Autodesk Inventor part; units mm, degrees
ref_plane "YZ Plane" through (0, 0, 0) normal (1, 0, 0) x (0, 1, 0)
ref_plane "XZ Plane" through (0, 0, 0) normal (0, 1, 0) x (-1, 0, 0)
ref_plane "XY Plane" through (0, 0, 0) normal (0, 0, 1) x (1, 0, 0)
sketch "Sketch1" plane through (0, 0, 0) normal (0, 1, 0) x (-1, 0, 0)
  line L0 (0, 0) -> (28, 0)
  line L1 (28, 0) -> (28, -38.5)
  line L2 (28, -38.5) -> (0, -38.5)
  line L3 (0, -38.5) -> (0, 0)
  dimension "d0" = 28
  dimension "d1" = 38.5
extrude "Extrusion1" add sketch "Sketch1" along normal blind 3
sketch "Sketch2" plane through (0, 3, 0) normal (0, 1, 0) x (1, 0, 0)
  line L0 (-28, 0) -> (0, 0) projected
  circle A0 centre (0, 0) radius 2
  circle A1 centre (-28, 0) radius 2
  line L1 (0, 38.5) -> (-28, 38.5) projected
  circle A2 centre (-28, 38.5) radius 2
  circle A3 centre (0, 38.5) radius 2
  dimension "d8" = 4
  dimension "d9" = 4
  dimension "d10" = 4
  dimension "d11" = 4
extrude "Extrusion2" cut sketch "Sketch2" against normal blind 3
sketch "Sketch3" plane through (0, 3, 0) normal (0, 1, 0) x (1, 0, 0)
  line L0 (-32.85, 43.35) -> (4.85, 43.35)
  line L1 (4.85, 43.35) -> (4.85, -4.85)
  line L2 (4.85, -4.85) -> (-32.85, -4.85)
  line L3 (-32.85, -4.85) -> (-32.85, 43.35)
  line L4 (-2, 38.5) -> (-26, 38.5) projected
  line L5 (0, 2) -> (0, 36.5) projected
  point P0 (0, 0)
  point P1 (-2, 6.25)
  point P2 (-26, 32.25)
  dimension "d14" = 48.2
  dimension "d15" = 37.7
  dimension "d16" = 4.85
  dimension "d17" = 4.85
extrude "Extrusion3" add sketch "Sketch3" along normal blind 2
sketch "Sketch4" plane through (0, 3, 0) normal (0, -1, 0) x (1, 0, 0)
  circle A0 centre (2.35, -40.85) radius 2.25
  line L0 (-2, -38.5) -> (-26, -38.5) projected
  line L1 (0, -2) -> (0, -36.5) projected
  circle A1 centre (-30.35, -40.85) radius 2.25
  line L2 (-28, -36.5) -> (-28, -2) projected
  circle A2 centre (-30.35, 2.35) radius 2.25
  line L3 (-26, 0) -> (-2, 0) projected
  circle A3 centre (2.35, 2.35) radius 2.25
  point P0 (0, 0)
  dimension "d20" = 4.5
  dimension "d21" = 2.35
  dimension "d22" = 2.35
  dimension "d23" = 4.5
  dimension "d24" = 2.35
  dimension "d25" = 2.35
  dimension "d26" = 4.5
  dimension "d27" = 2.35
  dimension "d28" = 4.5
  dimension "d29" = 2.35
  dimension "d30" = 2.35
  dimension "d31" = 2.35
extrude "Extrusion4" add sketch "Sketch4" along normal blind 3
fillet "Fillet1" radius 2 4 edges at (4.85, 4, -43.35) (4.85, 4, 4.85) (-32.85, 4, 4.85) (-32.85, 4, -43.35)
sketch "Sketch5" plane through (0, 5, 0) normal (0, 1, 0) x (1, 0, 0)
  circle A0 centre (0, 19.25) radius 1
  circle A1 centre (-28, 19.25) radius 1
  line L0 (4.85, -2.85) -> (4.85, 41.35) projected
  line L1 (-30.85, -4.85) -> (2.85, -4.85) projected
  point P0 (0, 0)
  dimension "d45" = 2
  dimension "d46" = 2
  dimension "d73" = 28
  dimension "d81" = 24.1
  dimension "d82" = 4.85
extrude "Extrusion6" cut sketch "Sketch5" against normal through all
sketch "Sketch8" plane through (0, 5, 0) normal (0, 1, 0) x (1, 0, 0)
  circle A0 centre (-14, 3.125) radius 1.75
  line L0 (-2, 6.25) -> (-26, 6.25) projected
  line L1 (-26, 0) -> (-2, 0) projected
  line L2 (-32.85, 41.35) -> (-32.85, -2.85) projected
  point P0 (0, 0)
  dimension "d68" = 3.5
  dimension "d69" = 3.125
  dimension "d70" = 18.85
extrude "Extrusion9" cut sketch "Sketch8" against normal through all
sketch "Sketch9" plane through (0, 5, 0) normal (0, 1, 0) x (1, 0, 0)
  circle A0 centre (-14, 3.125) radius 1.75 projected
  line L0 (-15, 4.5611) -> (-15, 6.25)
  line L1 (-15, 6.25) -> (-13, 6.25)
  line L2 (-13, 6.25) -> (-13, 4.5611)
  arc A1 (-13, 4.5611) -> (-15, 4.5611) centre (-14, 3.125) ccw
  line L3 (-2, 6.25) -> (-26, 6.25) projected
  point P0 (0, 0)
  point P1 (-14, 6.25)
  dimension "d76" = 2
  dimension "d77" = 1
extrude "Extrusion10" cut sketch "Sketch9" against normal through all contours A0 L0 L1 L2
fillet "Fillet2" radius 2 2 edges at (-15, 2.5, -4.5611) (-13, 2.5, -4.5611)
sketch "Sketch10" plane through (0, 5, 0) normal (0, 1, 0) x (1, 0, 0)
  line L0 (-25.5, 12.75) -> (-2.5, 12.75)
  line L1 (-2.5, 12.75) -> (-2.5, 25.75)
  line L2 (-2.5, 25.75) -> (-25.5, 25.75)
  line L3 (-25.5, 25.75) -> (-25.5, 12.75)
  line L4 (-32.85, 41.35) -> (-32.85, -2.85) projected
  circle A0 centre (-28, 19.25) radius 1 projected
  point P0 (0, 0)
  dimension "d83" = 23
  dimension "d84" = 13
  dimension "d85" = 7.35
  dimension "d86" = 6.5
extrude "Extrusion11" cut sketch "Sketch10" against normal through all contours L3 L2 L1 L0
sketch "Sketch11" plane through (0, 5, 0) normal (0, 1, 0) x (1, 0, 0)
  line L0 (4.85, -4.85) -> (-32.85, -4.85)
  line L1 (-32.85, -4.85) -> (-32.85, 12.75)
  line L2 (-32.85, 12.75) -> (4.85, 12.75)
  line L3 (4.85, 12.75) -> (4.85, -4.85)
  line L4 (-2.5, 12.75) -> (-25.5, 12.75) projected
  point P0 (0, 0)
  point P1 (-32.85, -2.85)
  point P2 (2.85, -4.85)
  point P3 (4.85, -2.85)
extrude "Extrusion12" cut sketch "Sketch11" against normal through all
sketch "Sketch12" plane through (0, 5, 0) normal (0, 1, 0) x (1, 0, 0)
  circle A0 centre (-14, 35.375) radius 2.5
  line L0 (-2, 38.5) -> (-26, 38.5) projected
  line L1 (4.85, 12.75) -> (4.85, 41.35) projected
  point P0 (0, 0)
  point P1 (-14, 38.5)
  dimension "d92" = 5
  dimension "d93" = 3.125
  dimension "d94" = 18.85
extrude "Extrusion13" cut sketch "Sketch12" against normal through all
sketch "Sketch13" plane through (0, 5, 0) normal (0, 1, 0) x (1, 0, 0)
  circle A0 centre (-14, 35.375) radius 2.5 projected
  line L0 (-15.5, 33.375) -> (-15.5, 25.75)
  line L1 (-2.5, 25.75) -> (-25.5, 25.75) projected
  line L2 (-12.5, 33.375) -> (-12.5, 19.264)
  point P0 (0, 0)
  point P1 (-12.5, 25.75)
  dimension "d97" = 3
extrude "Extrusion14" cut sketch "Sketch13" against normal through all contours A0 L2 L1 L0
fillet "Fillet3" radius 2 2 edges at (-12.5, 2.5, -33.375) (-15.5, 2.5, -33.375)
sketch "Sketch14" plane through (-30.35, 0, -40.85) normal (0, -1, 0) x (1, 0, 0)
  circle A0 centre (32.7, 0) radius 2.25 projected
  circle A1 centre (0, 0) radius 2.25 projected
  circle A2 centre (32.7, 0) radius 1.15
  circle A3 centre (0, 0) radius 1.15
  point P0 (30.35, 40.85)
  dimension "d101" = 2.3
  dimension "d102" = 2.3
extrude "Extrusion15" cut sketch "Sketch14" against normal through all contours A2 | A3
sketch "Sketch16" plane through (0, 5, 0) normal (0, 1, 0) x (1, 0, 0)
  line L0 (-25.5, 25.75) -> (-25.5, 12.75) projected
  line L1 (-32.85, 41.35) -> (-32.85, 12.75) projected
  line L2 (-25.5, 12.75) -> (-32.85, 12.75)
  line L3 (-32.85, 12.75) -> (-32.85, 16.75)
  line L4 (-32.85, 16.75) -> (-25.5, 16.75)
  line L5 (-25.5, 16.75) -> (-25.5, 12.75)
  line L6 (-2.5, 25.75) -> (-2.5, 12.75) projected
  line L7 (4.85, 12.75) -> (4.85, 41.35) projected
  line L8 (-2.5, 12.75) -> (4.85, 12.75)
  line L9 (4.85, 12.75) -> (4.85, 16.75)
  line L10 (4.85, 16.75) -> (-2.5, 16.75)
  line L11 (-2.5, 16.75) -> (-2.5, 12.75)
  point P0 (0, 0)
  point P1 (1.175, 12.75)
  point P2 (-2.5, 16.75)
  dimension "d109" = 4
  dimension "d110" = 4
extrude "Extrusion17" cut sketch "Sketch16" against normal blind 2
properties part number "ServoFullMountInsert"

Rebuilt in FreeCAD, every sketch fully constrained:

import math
import FreeCAD as App
import Part
import Sketcher
from FreeCAD import Vector
Q = App.Units.Quantity


def edges_at(feature, points):
    """Names of the edges that pass closest to the given points."""
    edges = feature.Shape.Edges
    near = lambda p: min(range(len(edges)), key=lambda i: edges[i].distToShape(Part.Vertex(*p))[0])
    return sorted({f"Edge{near(p) + 1}" for p in points})

doc = App.newDocument("Part")
body = doc.addObject("PartDesign::Body", "Body")

# Sketch on XZ plane
sketch1 = doc.addObject("Sketcher::SketchObject", "Sketch")
body.addObject(sketch1)
sketch1.AttachmentSupport = (doc.XZ_Plane, [""])
sketch1.MapMode = "FlatFace"
sketch1.addGeometry([
    Part.LineSegment(Vector(-28, 0, 0), Vector(0, 0, 0)),
    Part.LineSegment(Vector(0, 0, 0), Vector(0, -38.5, 0)),
    Part.LineSegment(Vector(0, -38.5, 0), Vector(-28, -38.5, 0)),
    Part.LineSegment(Vector(-28, -38.5, 0), Vector(-28, 0, 0)),
], False)
sketch1.addConstraint([
    Sketcher.Constraint("Coincident", 0, 2, 1, 1),
    Sketcher.Constraint("Coincident", 1, 2, 2, 1),
    Sketcher.Constraint("Coincident", 2, 2, 3, 1),
    Sketcher.Constraint("Coincident", 3, 2, 0, 1),
    Sketcher.Constraint("Horizontal", 0),
    Sketcher.Constraint("Vertical", 1),
    Sketcher.Constraint("Horizontal", 2),
    Sketcher.Constraint("Vertical", 3),
    Sketcher.Constraint("Coincident", 0, 2, -1, 1),
    Sketcher.Constraint("DistanceX", 0, 1, 0, 2, Q("28 mm")),
    Sketcher.Constraint("DistanceY", 1, 2, 1, 1, Q("38.5 mm")),
])
pad1 = doc.addObject("PartDesign::Pad", "Pad")
body.addObject(pad1)
pad1.Profile = sketch1
pad1.Length = 3
pad1.Reversed = True

# Sketch on XZ plane
sketch2 = doc.addObject("Sketcher::SketchObject", "Sketch001")
body.addObject(sketch2)
sketch2.AttachmentSupport = (doc.XZ_Plane, [""])
sketch2.MapMode = "FlatFace"
sketch2.AttachmentOffset = App.Placement(Vector(0, 0, -3), App.Rotation())
sketch2.addGeometry([
    Part.Circle(Vector(0, 0, 0), Vector(0, 0, 1), 2),
    Part.Circle(Vector(-28, 0, 0), Vector(0, 0, 1), 2),
    Part.Circle(Vector(-28, -38.5, 0), Vector(0, 0, 1), 2),
    Part.Circle(Vector(0, -38.5, 0), Vector(0, 0, 1), 2),
], False)
sketch2.addConstraint([
    Sketcher.Constraint("Coincident", 0, 3, -1, 1),
    Sketcher.Constraint("Equal", 0, 1),
    Sketcher.Constraint("Equal", 1, 2),
    Sketcher.Constraint("Equal", 2, 3),
    Sketcher.Constraint("PointOnObject", 1, 3, -1),
    Sketcher.Constraint("PointOnObject", 3, 3, -2),
    Sketcher.Constraint("Horizontal", 2, 3, 3, 3),
    Sketcher.Constraint("Vertical", 1, 3, 2, 3),
    Sketcher.Constraint("Diameter", 0, Q("4 mm")),
    Sketcher.Constraint("DistanceX", 1, 3, -1, 1, Q("28 mm")),
    Sketcher.Constraint("DistanceY", 2, 3, -1, 1, Q("38.5 mm")),
])
pocket1 = doc.addObject("PartDesign::Pocket", "Pocket")
body.addObject(pocket1)
pocket1.Profile = sketch2
pocket1.Length = 3
pocket1.Reversed = True

# Sketch on XZ plane
sketch3 = doc.addObject("Sketcher::SketchObject", "Sketch002")
body.addObject(sketch3)
sketch3.AttachmentSupport = (doc.XZ_Plane, [""])
sketch3.MapMode = "FlatFace"
sketch3.AttachmentOffset = App.Placement(Vector(0, 0, -3), App.Rotation())
sketch3.addGeometry([
    Part.LineSegment(Vector(4.85, -43.35, 0), Vector(-32.85, -43.35, 0)),
    Part.LineSegment(Vector(-32.85, -43.35, 0), Vector(-32.85, 4.85, 0)),
    Part.LineSegment(Vector(-32.85, 4.85, 0), Vector(4.85, 4.85, 0)),
    Part.LineSegment(Vector(4.85, 4.85, 0), Vector(4.85, -43.35, 0)),
], False)
sketch3.addConstraint([
    Sketcher.Constraint("Coincident", 0, 2, 1, 1),
    Sketcher.Constraint("Coincident", 1, 2, 2, 1),
    Sketcher.Constraint("Coincident", 2, 2, 3, 1),
    Sketcher.Constraint("Coincident", 3, 2, 0, 1),
    Sketcher.Constraint("Horizontal", 0),
    Sketcher.Constraint("Vertical", 1),
    Sketcher.Constraint("Horizontal", 2),
    Sketcher.Constraint("Vertical", 3),
    Sketcher.Constraint("DistanceX", 0, 2, 0, 1, Q("37.7 mm")),
    Sketcher.Constraint("DistanceY", 1, 1, 1, 2, Q("48.2 mm")),
    Sketcher.Constraint("DistanceY", -1, 1, 1, 2, Q("4.85 mm")),
    Sketcher.Constraint("DistanceX", -1, 1, 2, 2, Q("4.85 mm")),
])
pad2 = doc.addObject("PartDesign::Pad", "Pad001")
body.addObject(pad2)
pad2.Profile = sketch3
pad2.Length = 2
pad2.Reversed = True

# Sketch on XZ plane
sketch4 = doc.addObject("Sketcher::SketchObject", "Sketch003")
body.addObject(sketch4)
sketch4.AttachmentSupport = (doc.XZ_Plane, [""])
sketch4.MapMode = "FlatFace"
sketch4.AttachmentOffset = App.Placement(Vector(0, 0, -3), App.Rotation())
sketch4.addGeometry([
    Part.Circle(Vector(2.35, -40.85, 0), Vector(0, 0, 1), 2.25),
    Part.Circle(Vector(-30.35, -40.85, 0), Vector(0, 0, 1), 2.25),
    Part.Circle(Vector(-30.35, 2.35, 0), Vector(0, 0, 1), 2.25),
    Part.Circle(Vector(2.35, 2.35, 0), Vector(0, 0, 1), 2.25),
], False)
sketch4.addConstraint([
    Sketcher.Constraint("Equal", 0, 1),
    Sketcher.Constraint("Equal", 1, 2),
    Sketcher.Constraint("Equal", 2, 3),
    Sketcher.Constraint("Horizontal", 0, 3, 1, 3),
    Sketcher.Constraint("Horizontal", 2, 3, 3, 3),
    Sketcher.Constraint("Vertical", 1, 3, 2, 3),
    Sketcher.Constraint("Vertical", 0, 3, 3, 3),
    Sketcher.Constraint("Diameter", 0, Q("4.5 mm")),
    Sketcher.Constraint("DistanceX", -1, 1, 0, 3, Q("2.35 mm")),
    Sketcher.Constraint("DistanceY", -1, 1, 2, 3, Q("2.35 mm")),
    Sketcher.Constraint("DistanceX", 1, 3, 0, 3, Q("32.7 mm")),
    Sketcher.Constraint("DistanceY", 1, 3, 2, 3, Q("43.2 mm")),
])
pad3 = doc.addObject("PartDesign::Pad", "Pad002")
body.addObject(pad3)
pad3.Profile = sketch4
pad3.Length = 3
doc.recompute()

fillet = doc.addObject("PartDesign::Fillet", "Fillet")
body.addObject(fillet)
fillet.Base = (pad3, edges_at(pad3, [
    (4.85, 4, -43.35),
    (4.85, 4, 4.85),
    (-32.85, 4, 4.85),
    (-32.85, 4, -43.35),
]))
fillet.Radius = 2

# Sketch on XZ plane
sketch5 = doc.addObject("Sketcher::SketchObject", "Sketch004")
body.addObject(sketch5)
sketch5.AttachmentSupport = (doc.XZ_Plane, [""])
sketch5.MapMode = "FlatFace"
sketch5.AttachmentOffset = App.Placement(Vector(0, 0, -5), App.Rotation())
sketch5.addGeometry([
    Part.Circle(Vector(0, -19.25, 0), Vector(0, 0, 1), 1),
    Part.Circle(Vector(-28, -19.25, 0), Vector(0, 0, 1), 1),
], False)
sketch5.addConstraint([
    Sketcher.Constraint("Equal", 0, 1),
    Sketcher.Constraint("PointOnObject", 0, 3, -2),
    Sketcher.Constraint("Horizontal", 0, 3, 1, 3),
    Sketcher.Constraint("Diameter", 0, Q("2 mm")),
    Sketcher.Constraint("DistanceX", 1, 3, -1, 1, Q("28 mm")),
    Sketcher.Constraint("DistanceY", 0, 3, -1, 1, Q("19.25 mm")),
])
pocket2 = doc.addObject("PartDesign::Pocket", "Pocket001")
body.addObject(pocket2)
pocket2.Profile = sketch5
pocket2.Type = "ThroughAll"
pocket2.Reversed = True

# Sketch on XZ plane
sketch6 = doc.addObject("Sketcher::SketchObject", "Sketch005")
body.addObject(sketch6)
sketch6.AttachmentSupport = (doc.XZ_Plane, [""])
sketch6.MapMode = "FlatFace"
sketch6.AttachmentOffset = App.Placement(Vector(0, 0, -5), App.Rotation())
sketch6.addGeometry(Part.Circle(Vector(-14, -3.125, 0), Vector(0, 0, 1), 1.75), False)
sketch6.addConstraint([
    Sketcher.Constraint("Diameter", 0, Q("3.5 mm")),
    Sketcher.Constraint("DistanceX", 0, 3, -1, 1, Q("14 mm")),
    Sketcher.Constraint("DistanceY", 0, 3, -1, 1, Q("3.125 mm")),
])
pocket3 = doc.addObject("PartDesign::Pocket", "Pocket002")
body.addObject(pocket3)
pocket3.Profile = sketch6
pocket3.Type = "ThroughAll"
pocket3.Reversed = True

# Sketch on XZ plane
sketch7 = doc.addObject("Sketcher::SketchObject", "Sketch006")
body.addObject(sketch7)
sketch7.AttachmentSupport = (doc.XZ_Plane, [""])
sketch7.MapMode = "FlatFace"
sketch7.AttachmentOffset = App.Placement(Vector(0, 0, -5), App.Rotation())
sketch7.addGeometry([
    Part.ArcOfCircle(Part.Circle(Vector(-14, -3.125, 0), Vector(0, 0, 1), 1.75), math.radians(-124.850665), math.radians(-55.149335)),
    Part.LineSegment(Vector(-13, -4.5611, 0), Vector(-13, -6.25, 0)),
    Part.LineSegment(Vector(-13, -6.25, 0), Vector(-15, -6.25, 0)),
    Part.LineSegment(Vector(-15, -6.25, 0), Vector(-15, -4.5611, 0)),
], False)
sketch7.addConstraint([
    Sketcher.Constraint("Coincident", 0, 2, 1, 1),
    Sketcher.Constraint("Coincident", 1, 2, 2, 1),
    Sketcher.Constraint("Coincident", 2, 2, 3, 1),
    Sketcher.Constraint("Coincident", 3, 2, 0, 1),
    Sketcher.Constraint("Vertical", 1),
    Sketcher.Constraint("Horizontal", 2),
    Sketcher.Constraint("Vertical", 3),
    Sketcher.Constraint("Horizontal", 0, 2, 3, 2),
    Sketcher.Constraint("DistanceX", 2, 2, 2, 1, Q("2 mm")),
    Sketcher.Constraint("Radius", 0, Q("1.75 mm")),
    Sketcher.Constraint("DistanceX", 0, 3, -1, 1, Q("14 mm")),
    Sketcher.Constraint("DistanceY", 1, 2, 1, 1, Q("1.689 mm")),
    Sketcher.Constraint("DistanceY", 1, 2, -1, 1, Q("6.25 mm")),
])
pocket4 = doc.addObject("PartDesign::Pocket", "Pocket003")
body.addObject(pocket4)
pocket4.Profile = sketch7
pocket4.Type = "ThroughAll"
pocket4.Reversed = True
doc.recompute()

fillet2 = doc.addObject("PartDesign::Fillet", "Fillet001")
body.addObject(fillet2)
fillet2.Base = (pocket4, edges_at(pocket4, [(-15, 2.5, -4.561), (-13, 2.5, -4.561)]))
fillet2.Radius = 2

# Sketch on XZ plane
sketch8 = doc.addObject("Sketcher::SketchObject", "Sketch007")
body.addObject(sketch8)
sketch8.AttachmentSupport = (doc.XZ_Plane, [""])
sketch8.MapMode = "FlatFace"
sketch8.AttachmentOffset = App.Placement(Vector(0, 0, -5), App.Rotation())
sketch8.addGeometry([
    Part.LineSegment(Vector(-25.5, -25.75, 0), Vector(-25.5, -12.75, 0)),
    Part.LineSegment(Vector(-25.5, -12.75, 0), Vector(-2.5, -12.75, 0)),
    Part.LineSegment(Vector(-2.5, -12.75, 0), Vector(-2.5, -25.75, 0)),
    Part.LineSegment(Vector(-2.5, -25.75, 0), Vector(-25.5, -25.75, 0)),
], False)
sketch8.addConstraint([
    Sketcher.Constraint("Coincident", 0, 2, 1, 1),
    Sketcher.Constraint("Coincident", 1, 2, 2, 1),
    Sketcher.Constraint("Coincident", 2, 2, 3, 1),
    Sketcher.Constraint("Coincident", 3, 2, 0, 1),
    Sketcher.Constraint("Vertical", 0),
    Sketcher.Constraint("Horizontal", 1),
    Sketcher.Constraint("Vertical", 2),
    Sketcher.Constraint("Horizontal", 3),
    Sketcher.Constraint("DistanceX", 1, 1, 1, 2, Q("23 mm")),
    Sketcher.Constraint("DistanceY", 0, 1, 0, 2, Q("13 mm")),
    Sketcher.Constraint("DistanceX", 0, 2, -1, 1, Q("25.5 mm")),
    Sketcher.Constraint("DistanceY", 0, 2, -1, 1, Q("12.75 mm")),
])
pocket5 = doc.addObject("PartDesign::Pocket", "Pocket004")
body.addObject(pocket5)
pocket5.Profile = sketch8
pocket5.Type = "ThroughAll"
pocket5.Reversed = True

# Sketch on XZ plane
sketch9 = doc.addObject("Sketcher::SketchObject", "Sketch008")
body.addObject(sketch9)
sketch9.AttachmentSupport = (doc.XZ_Plane, [""])
sketch9.MapMode = "FlatFace"
sketch9.AttachmentOffset = App.Placement(Vector(0, 0, -5), App.Rotation())
sketch9.addGeometry([
    Part.LineSegment(Vector(-32.85, 4.85, 0), Vector(4.85, 4.85, 0)),
    Part.LineSegment(Vector(4.85, 4.85, 0), Vector(4.85, -12.75, 0)),
    Part.LineSegment(Vector(4.85, -12.75, 0), Vector(-32.85, -12.75, 0)),
    Part.LineSegment(Vector(-32.85, -12.75, 0), Vector(-32.85, 4.85, 0)),
], False)
sketch9.addConstraint([
    Sketcher.Constraint("Coincident", 0, 2, 1, 1),
    Sketcher.Constraint("Coincident", 1, 2, 2, 1),
    Sketcher.Constraint("Coincident", 2, 2, 3, 1),
    Sketcher.Constraint("Coincident", 3, 2, 0, 1),
    Sketcher.Constraint("Horizontal", 0),
    Sketcher.Constraint("Vertical", 1),
    Sketcher.Constraint("Horizontal", 2),
    Sketcher.Constraint("Vertical", 3),
    Sketcher.Constraint("DistanceX", 0, 1, 0, 2, Q("37.7 mm")),
    Sketcher.Constraint("DistanceY", 1, 2, 1, 1, Q("17.6 mm")),
    Sketcher.Constraint("DistanceX", -1, 1, 0, 2, Q("4.85 mm")),
    Sketcher.Constraint("DistanceY", -1, 1, 0, 2, Q("4.85 mm")),
])
pocket6 = doc.addObject("PartDesign::Pocket", "Pocket005")
body.addObject(pocket6)
pocket6.Profile = sketch9
pocket6.Type = "ThroughAll"
pocket6.Reversed = True

# Sketch on XZ plane
sketch10 = doc.addObject("Sketcher::SketchObject", "Sketch009")
body.addObject(sketch10)
sketch10.AttachmentSupport = (doc.XZ_Plane, [""])
sketch10.MapMode = "FlatFace"
sketch10.AttachmentOffset = App.Placement(Vector(0, 0, -5), App.Rotation())
sketch10.addGeometry(Part.Circle(Vector(-14, -35.375, 0), Vector(0, 0, 1), 2.5), False)
sketch10.addConstraint([
    Sketcher.Constraint("Diameter", 0, Q("5 mm")),
    Sketcher.Constraint("DistanceX", 0, 3, -1, 1, Q("14 mm")),
    Sketcher.Constraint("DistanceY", 0, 3, -1, 1, Q("35.375 mm")),
])
pocket7 = doc.addObject("PartDesign::Pocket", "Pocket006")
body.addObject(pocket7)
pocket7.Profile = sketch10
pocket7.Type = "ThroughAll"
pocket7.Reversed = True

# Sketch on XZ plane
sketch11 = doc.addObject("Sketcher::SketchObject", "Sketch010")
body.addObject(sketch11)
sketch11.AttachmentSupport = (doc.XZ_Plane, [""])
sketch11.MapMode = "FlatFace"
sketch11.AttachmentOffset = App.Placement(Vector(0, 0, -5), App.Rotation())
sketch11.addGeometry([
    Part.ArcOfCircle(Part.Circle(Vector(-14, -35.375, 0), Vector(0, 0, 1), 2.5), math.radians(53.130102), math.radians(126.869898)),
    Part.LineSegment(Vector(-15.5, -33.375, 0), Vector(-15.5, -25.75, 0)),
    Part.LineSegment(Vector(-15.5, -25.75, 0), Vector(-12.5, -25.75, 0)),
    Part.LineSegment(Vector(-12.5, -25.75, 0), Vector(-12.5, -33.375, 0)),
], False)
sketch11.addConstraint([
    Sketcher.Constraint("Coincident", 0, 2, 1, 1),
    Sketcher.Constraint("Coincident", 1, 2, 2, 1),
    Sketcher.Constraint("Coincident", 2, 2, 3, 1),
    Sketcher.Constraint("Coincident", 3, 2, 0, 1),
    Sketcher.Constraint("Vertical", 1),
    Sketcher.Constraint("Horizontal", 2),
    Sketcher.Constraint("Vertical", 3),
    Sketcher.Constraint("Horizontal", 0, 2, 3, 2),
    Sketcher.Constraint("DistanceX", 2, 1, 2, 2, Q("3 mm")),
    Sketcher.Constraint("Radius", 0, Q("2.5 mm")),
    Sketcher.Constraint("DistanceX", 0, 3, -1, 1, Q("14 mm")),
    Sketcher.Constraint("DistanceY", 1, 1, 1, 2, Q("7.625 mm")),
    Sketcher.Constraint("DistanceY", 1, 2, -1, 1, Q("25.75 mm")),
])
pocket8 = doc.addObject("PartDesign::Pocket", "Pocket007")
body.addObject(pocket8)
pocket8.Profile = sketch11
pocket8.Type = "ThroughAll"
pocket8.Reversed = True
doc.recompute()

fillet3 = doc.addObject("PartDesign::Fillet", "Fillet002")
body.addObject(fillet3)
fillet3.Base = (pocket8, edges_at(pocket8, [(-12.5, 2.5, -33.375), (-15.5, 2.5, -33.375)]))
fillet3.Radius = 2

# Sketch on XZ plane
sketch12 = doc.addObject("Sketcher::SketchObject", "Sketch011")
body.addObject(sketch12)
sketch12.AttachmentSupport = (doc.XZ_Plane, [""])
sketch12.MapMode = "FlatFace"
sketch12.addGeometry([
    Part.Circle(Vector(2.35, -40.85, 0), Vector(0, 0, 1), 1.15),
    Part.Circle(Vector(-30.35, -40.85, 0), Vector(0, 0, 1), 1.15),
], False)
sketch12.addConstraint([
    Sketcher.Constraint("Equal", 0, 1),
    Sketcher.Constraint("Horizontal", 0, 3, 1, 3),
    Sketcher.Constraint("Diameter", 0, Q("2.3 mm")),
    Sketcher.Constraint("DistanceX", 1, 3, 0, 3, Q("32.7 mm")),
    Sketcher.Constraint("DistanceX", -1, 1, 0, 3, Q("2.35 mm")),
    Sketcher.Constraint("DistanceY", 0, 3, -1, 1, Q("40.85 mm")),
])
pocket9 = doc.addObject("PartDesign::Pocket", "Pocket008")
body.addObject(pocket9)
pocket9.Profile = sketch12
pocket9.Type = "ThroughAll"

# Sketch on XZ plane
sketch13 = doc.addObject("Sketcher::SketchObject", "Sketch012")
body.addObject(sketch13)
sketch13.AttachmentSupport = (doc.XZ_Plane, [""])
sketch13.MapMode = "FlatFace"
sketch13.AttachmentOffset = App.Placement(Vector(0, 0, -5), App.Rotation())
sketch13.addGeometry([
    Part.LineSegment(Vector(-25.5, -12.75, 0), Vector(-25.5, -16.75, 0)),  # 0
    Part.LineSegment(Vector(-25.5, -16.75, 0), Vector(-32.85, -16.75, 0)),  # 1
    Part.LineSegment(Vector(-32.85, -16.75, 0), Vector(-32.85, -12.75, 0)),  # 2
    Part.LineSegment(Vector(-32.85, -12.75, 0), Vector(-25.5, -12.75, 0)),  # 3
    Part.LineSegment(Vector(4.85, -16.75, 0), Vector(-2.5, -16.75, 0)),  # 4
    Part.LineSegment(Vector(-2.5, -16.75, 0), Vector(-2.5, -12.75, 0)),  # 5
    Part.LineSegment(Vector(-2.5, -12.75, 0), Vector(4.85, -12.75, 0)),  # 6
    Part.LineSegment(Vector(4.85, -12.75, 0), Vector(4.85, -16.75, 0)),  # 7
], False)
sketch13.addConstraint([
    Sketcher.Constraint("Coincident", 0, 2, 1, 1),
    Sketcher.Constraint("Coincident", 1, 2, 2, 1),
    Sketcher.Constraint("Coincident", 2, 2, 3, 1),
    Sketcher.Constraint("Coincident", 3, 2, 0, 1),
    Sketcher.Constraint("Coincident", 4, 2, 5, 1),
    Sketcher.Constraint("Coincident", 5, 2, 6, 1),
    Sketcher.Constraint("Coincident", 6, 2, 7, 1),
    Sketcher.Constraint("Coincident", 7, 2, 4, 1),
    Sketcher.Constraint("Vertical", 0),
    Sketcher.Constraint("Horizontal", 1),
    Sketcher.Constraint("Vertical", 2),
    Sketcher.Constraint("Horizontal", 3),
    Sketcher.Constraint("Horizontal", 4),
    Sketcher.Constraint("Vertical", 5),
    Sketcher.Constraint("Horizontal", 6),
    Sketcher.Constraint("Vertical", 7),
    Sketcher.Constraint("Horizontal", 1, 2, 4, 2),
    Sketcher.Constraint("Horizontal", 3, 2, 5, 2),
    Sketcher.Constraint("Equal", 3, 4),
    Sketcher.Constraint("DistanceY", 0, 2, 0, 1, Q("4 mm")),
    Sketcher.Constraint("DistanceX", 0, 2, 4, 2, Q("23 mm")),
    Sketcher.Constraint("DistanceX", 1, 2, 1, 1, Q("7.35 mm")),
    Sketcher.Constraint("DistanceX", 0, 2, -1, 1, Q("25.5 mm")),
    Sketcher.Constraint("DistanceY", 0, 2, -1, 1, Q("16.75 mm")),
])
pocket10 = doc.addObject("PartDesign::Pocket", "Pocket009")
body.addObject(pocket10)
pocket10.Profile = sketch13
pocket10.Length = 2
pocket10.Reversed = True

doc.recompute()
